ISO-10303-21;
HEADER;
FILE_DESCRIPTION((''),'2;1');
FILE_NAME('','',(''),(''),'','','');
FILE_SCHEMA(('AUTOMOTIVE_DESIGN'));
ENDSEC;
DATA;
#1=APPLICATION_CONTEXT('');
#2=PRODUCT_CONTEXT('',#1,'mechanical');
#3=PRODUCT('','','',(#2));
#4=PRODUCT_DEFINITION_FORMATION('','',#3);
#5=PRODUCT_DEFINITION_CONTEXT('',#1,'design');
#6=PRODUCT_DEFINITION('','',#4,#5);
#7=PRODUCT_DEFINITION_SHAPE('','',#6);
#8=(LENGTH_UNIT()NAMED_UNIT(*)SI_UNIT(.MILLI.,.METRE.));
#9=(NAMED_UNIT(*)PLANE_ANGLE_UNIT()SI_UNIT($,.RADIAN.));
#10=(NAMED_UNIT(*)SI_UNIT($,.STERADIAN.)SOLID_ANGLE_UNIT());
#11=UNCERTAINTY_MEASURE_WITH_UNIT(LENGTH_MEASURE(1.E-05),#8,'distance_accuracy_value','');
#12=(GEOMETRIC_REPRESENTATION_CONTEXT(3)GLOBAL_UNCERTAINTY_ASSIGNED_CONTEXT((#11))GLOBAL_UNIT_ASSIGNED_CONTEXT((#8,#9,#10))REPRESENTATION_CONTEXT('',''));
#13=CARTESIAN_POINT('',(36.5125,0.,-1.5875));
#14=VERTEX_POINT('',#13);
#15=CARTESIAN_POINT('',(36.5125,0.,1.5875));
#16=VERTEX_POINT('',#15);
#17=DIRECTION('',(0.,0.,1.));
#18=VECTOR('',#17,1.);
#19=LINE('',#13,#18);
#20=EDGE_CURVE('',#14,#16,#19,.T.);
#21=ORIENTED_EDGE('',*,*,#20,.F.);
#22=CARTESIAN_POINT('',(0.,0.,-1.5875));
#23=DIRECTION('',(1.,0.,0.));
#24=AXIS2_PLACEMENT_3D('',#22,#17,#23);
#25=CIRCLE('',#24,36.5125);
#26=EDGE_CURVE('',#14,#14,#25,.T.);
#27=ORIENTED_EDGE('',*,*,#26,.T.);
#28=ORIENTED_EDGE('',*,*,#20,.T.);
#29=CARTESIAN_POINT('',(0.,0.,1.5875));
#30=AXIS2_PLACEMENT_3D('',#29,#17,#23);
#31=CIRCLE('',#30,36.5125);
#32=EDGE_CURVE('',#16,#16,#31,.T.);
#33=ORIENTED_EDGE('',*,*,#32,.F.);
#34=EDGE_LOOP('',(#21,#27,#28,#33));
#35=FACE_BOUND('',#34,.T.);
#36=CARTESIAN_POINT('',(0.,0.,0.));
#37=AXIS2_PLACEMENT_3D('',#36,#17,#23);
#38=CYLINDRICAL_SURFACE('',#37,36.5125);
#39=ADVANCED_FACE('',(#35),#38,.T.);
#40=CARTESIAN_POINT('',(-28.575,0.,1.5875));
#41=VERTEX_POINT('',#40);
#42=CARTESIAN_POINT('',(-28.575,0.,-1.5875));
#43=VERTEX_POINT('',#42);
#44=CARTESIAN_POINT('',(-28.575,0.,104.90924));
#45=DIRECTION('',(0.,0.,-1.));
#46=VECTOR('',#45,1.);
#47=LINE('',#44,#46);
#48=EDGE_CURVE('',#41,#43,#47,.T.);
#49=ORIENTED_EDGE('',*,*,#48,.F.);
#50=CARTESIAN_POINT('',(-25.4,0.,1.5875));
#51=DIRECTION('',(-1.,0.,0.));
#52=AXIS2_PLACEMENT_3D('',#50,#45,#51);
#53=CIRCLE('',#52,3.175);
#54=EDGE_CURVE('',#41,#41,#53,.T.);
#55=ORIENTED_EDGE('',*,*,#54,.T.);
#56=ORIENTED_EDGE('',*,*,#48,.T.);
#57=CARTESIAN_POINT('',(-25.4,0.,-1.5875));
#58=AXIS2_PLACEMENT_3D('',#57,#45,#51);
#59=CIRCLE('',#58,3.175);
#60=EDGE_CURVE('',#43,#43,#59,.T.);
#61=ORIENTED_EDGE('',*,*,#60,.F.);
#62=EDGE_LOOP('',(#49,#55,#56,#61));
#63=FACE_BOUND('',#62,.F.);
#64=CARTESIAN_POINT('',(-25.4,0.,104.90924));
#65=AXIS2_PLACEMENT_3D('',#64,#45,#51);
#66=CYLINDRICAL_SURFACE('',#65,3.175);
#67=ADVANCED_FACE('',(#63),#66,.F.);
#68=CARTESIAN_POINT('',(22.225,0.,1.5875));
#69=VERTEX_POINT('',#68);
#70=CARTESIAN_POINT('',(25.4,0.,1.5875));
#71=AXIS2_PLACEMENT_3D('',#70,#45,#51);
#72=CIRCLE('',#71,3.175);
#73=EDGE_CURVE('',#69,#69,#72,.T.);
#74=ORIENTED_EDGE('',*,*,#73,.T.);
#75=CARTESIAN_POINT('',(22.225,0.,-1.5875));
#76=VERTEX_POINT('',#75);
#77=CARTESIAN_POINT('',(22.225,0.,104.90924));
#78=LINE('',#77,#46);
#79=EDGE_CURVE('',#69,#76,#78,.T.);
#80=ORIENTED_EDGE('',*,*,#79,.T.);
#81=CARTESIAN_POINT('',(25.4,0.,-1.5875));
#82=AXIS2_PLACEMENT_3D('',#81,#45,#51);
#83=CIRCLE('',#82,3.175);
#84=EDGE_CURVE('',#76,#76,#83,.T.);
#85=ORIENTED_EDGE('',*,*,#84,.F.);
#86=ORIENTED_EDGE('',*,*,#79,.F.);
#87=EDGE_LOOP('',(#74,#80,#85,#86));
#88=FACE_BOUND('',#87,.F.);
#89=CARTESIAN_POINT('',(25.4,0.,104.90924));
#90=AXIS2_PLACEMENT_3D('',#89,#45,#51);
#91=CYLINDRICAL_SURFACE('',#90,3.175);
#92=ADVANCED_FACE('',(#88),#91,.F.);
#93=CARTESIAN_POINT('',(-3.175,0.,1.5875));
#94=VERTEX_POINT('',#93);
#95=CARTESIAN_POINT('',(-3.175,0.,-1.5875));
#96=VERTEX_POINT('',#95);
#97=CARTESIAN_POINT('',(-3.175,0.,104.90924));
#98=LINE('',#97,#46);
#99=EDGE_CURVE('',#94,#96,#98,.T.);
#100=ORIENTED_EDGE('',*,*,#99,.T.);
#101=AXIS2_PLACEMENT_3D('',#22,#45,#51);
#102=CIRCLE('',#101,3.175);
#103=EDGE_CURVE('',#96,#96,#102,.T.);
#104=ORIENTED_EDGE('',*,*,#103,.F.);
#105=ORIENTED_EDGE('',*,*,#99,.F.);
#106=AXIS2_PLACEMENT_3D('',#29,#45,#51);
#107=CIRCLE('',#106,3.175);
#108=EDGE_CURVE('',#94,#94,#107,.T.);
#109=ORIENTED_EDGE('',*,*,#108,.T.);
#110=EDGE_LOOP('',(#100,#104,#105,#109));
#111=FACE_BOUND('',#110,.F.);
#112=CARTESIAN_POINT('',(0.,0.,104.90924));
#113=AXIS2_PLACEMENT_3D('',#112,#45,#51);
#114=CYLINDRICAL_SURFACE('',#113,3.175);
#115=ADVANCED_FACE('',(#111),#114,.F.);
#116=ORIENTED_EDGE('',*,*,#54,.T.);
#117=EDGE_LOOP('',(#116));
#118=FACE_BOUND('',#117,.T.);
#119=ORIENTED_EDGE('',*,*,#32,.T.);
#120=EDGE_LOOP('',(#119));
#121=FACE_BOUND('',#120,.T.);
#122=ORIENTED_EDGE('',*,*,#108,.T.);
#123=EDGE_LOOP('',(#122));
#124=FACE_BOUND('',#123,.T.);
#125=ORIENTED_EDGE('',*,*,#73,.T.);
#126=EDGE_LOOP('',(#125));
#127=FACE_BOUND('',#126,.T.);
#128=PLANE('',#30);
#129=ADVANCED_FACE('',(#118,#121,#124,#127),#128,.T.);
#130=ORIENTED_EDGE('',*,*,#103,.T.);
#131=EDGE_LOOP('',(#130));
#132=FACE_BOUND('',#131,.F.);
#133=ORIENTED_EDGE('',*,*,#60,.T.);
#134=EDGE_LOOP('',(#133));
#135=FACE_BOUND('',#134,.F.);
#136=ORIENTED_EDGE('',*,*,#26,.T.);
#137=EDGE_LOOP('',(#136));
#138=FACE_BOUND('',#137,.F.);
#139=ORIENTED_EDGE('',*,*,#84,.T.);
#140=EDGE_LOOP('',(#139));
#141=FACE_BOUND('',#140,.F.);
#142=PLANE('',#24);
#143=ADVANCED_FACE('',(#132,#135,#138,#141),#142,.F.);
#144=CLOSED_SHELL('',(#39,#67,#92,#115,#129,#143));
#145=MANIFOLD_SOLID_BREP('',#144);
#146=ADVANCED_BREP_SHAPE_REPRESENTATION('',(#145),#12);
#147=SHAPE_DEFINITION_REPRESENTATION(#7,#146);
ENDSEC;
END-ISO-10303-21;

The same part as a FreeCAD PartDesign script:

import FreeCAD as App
import Part
import Sketcher
Q = App.Units.Quantity

doc = App.newDocument("Part")
body = doc.addObject("PartDesign::Body", "Body")

# Sketch on XY plane
sketch1 = body.newObject("Sketcher::SketchObject", "Sketch")
sketch1.AttachmentSupport = (doc.getObject("XY_Plane"), [""])
sketch1.MapMode = "FlatFace"
sketch1.addGeometry(Part.Circle(App.Vector(0, 0, 0), App.Vector(0, 0, 1), 37), False)
sketch1.addConstraint([
    Sketcher.Constraint("Coincident", 0, 3, -1, 1),
    Sketcher.Constraint("Diameter", 0, Q("2.875 in")),
])
pad1 = body.newObject("PartDesign::Pad", "Pad")
pad1.Profile = sketch1
pad1.Length = Q("0.125 in")
pad1.Midplane = True

# Sketch on XY plane
sketch2 = body.newObject("Sketcher::SketchObject", "Sketch001")
sketch2.AttachmentSupport = (doc.getObject("XY_Plane"), [""])
sketch2.MapMode = "FlatFace"
sketch2.AttachmentOffset = App.Placement(App.Vector(0, 0, 0.0625 * 25.4), App.Rotation())
sketch2.addGeometry([
    Part.Circle(App.Vector(-25.4, 0, 0), App.Vector(0, 0, 1), 3.2),
    Part.Circle(App.Vector(0, 0, 0), App.Vector(0, 0, 1), 3.2),
    Part.Circle(App.Vector(25.4, 0, 0), App.Vector(0, 0, 1), 3.2),
], False)
sketch2.addConstraint([
    Sketcher.Constraint("Coincident", 1, 3, -1, 1),
    Sketcher.Constraint("Equal", 0, 1),
    Sketcher.Constraint("Equal", 1, 2),
    Sketcher.Constraint("Symmetric", 0, 3, 2, 3, -1, 1),
    Sketcher.Constraint("PointOnObject", 0, 3, -1),
    Sketcher.Constraint("Diameter", 0, Q("0.25 in")),
    Sketcher.Constraint("DistanceX", 0, 3, -1, 1, Q("1 in")),
])
doc.recompute()
hole = body.newObject("PartDesign::Hole", "Hole")
hole.Profile = sketch2
hole.ThreadType = "None"
hole.Diameter = Q("0.25 in")
hole.DepthType = "ThroughAll"

doc.recompute()
